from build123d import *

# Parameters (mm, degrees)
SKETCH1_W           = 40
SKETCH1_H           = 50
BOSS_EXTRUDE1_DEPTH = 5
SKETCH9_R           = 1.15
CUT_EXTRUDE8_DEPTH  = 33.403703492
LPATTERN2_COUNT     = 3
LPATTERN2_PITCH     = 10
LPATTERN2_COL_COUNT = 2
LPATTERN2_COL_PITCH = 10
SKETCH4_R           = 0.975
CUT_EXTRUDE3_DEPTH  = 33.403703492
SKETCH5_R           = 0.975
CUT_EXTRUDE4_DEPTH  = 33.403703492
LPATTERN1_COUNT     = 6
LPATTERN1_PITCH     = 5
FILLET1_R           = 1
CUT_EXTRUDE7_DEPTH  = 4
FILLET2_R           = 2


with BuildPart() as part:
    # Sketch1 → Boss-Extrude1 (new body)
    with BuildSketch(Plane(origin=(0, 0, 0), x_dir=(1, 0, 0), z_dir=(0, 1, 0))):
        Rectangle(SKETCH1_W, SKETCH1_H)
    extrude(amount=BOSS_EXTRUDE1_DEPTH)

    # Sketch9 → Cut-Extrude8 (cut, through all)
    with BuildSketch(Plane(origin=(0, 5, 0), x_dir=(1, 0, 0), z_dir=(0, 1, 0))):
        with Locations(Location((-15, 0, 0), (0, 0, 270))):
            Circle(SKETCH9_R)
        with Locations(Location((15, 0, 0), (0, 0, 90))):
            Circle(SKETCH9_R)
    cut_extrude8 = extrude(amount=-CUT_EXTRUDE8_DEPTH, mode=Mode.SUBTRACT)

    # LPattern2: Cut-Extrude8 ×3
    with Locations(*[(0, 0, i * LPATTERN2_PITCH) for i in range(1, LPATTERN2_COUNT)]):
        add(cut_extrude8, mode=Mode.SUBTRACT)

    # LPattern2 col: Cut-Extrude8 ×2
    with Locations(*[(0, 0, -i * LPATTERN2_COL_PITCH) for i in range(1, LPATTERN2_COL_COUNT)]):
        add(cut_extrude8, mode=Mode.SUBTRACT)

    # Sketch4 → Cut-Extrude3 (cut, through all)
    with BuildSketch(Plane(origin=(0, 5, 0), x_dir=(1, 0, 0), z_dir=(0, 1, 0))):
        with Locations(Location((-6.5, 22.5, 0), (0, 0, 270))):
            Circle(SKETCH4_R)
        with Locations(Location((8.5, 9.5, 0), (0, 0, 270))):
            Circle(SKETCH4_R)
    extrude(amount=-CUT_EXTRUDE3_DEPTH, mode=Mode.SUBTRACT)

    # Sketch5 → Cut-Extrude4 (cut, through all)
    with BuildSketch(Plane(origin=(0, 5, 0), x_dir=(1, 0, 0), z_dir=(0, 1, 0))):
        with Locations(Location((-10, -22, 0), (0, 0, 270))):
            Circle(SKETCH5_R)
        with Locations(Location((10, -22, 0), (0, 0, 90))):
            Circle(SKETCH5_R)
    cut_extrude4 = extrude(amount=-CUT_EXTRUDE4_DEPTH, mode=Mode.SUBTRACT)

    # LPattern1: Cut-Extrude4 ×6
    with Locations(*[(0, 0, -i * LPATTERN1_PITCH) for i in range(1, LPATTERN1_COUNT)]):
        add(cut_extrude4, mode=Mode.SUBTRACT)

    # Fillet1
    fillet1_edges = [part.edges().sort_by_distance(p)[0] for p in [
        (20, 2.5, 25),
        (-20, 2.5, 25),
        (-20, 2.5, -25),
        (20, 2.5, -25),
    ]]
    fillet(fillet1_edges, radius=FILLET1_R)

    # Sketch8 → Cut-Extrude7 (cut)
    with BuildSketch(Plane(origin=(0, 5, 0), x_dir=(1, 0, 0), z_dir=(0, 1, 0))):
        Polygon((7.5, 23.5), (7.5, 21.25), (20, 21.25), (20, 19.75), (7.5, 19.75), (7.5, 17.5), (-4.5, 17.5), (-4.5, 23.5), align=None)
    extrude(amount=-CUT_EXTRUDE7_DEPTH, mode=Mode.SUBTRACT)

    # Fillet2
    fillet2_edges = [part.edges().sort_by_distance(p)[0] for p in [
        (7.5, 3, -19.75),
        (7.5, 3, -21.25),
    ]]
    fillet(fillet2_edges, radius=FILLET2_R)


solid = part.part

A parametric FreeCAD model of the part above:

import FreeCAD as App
import Part
import Sketcher
from FreeCAD import Vector
Q = App.Units.Quantity


def edges_at(feature, points):
    """Names of the edges that pass closest to the given points."""
    edges = feature.Shape.Edges
    near = lambda p: min(range(len(edges)), key=lambda i: edges[i].distToShape(Part.Vertex(*p))[0])
    return sorted({f"Edge{near(p) + 1}" for p in points})


def add_polygon(sketch, points):
    """Adds a closed chain of lines whose ends are joined by coincident constraints."""
    first, n = sketch.GeometryCount, len(points)
    for a, b in zip(points, points[1:] + points[:1]):
        sketch.addGeometry(Part.LineSegment(App.Vector(*a, 0), App.Vector(*b, 0)), False)
    for i in range(n):
        sketch.addConstraint(Sketcher.Constraint("Coincident", first + i, 2, first + (i + 1) % n, 1))

doc = App.newDocument("Part")
body = doc.addObject("PartDesign::Body", "Body")

# Sketch on XZ plane
sketch1 = body.newObject("Sketcher::SketchObject", "Sketch")
sketch1.AttachmentSupport = (doc.getObject("XZ_Plane"), [""])
sketch1.MapMode = "FlatFace"
add_polygon(sketch1, [(-20, -25), (-20, 25), (20, 25), (20, -25)])  # lines 0-3
sketch1.addConstraint(Sketcher.Constraint("Vertical", 0))
sketch1.addConstraint(Sketcher.Constraint("Horizontal", 1))
sketch1.addConstraint(Sketcher.Constraint("Vertical", 2))
sketch1.addConstraint(Sketcher.Constraint("Horizontal", 3))
sketch1.addConstraint(Sketcher.Constraint("Symmetric", 0, 2, 2, 2, -1, 1))
sketch1.addConstraint(Sketcher.Constraint("DistanceX", 1, 1, 1, 2, Q("40 mm")))
sketch1.addConstraint(Sketcher.Constraint("DistanceY", 0, 1, 0, 2, Q("50 mm")))
pad1 = body.newObject("PartDesign::Pad", "Pad")
pad1.Profile = sketch1
pad1.Length = 5
pad1.Reversed = True

# Sketch on XZ plane
sketch2 = body.newObject("Sketcher::SketchObject", "Sketch001")
sketch2.AttachmentSupport = (doc.getObject("XZ_Plane"), [""])
sketch2.MapMode = "FlatFace"
sketch2.AttachmentOffset = App.Placement(Vector(0, 0, -5), App.Rotation())
sketch2.addGeometry(Part.Circle(Vector(-15, 0, 0), Vector(0, 0, 1), 1.1), False)
sketch2.addGeometry(Part.Circle(Vector(15, 0, 0), Vector(0, 0, 1), 1.1), False)
sketch2.addConstraint(Sketcher.Constraint("Equal", 0, 1))
sketch2.addConstraint(Sketcher.Constraint("Symmetric", 0, 3, 1, 3, -1, 1))
sketch2.addConstraint(Sketcher.Constraint("PointOnObject", 0, 3, -1))
sketch2.addConstraint(Sketcher.Constraint("Diameter", 0, Q("2.3 mm")))
sketch2.addConstraint(Sketcher.Constraint("DistanceX", 0, 3, -1, 1, Q("15 mm")))
pocket1 = body.newObject("PartDesign::Pocket", "Pocket")
pocket1.Profile = sketch2
pocket1.Type = "ThroughAll"
pocket1.Reversed = True
doc.recompute()

linearpattern = body.newObject("PartDesign::LinearPattern", "LinearPattern")
linearpattern.Originals = [pocket1]
linearpattern.Direction = (doc.getObject("Z_Axis"), [""])
linearpattern.Mode = "offset"
linearpattern.Offset = 10
linearpattern.Occurrences = 3
body.Tip = linearpattern
doc.recompute()

linearpattern2 = body.newObject("PartDesign::LinearPattern", "LinearPattern001")
linearpattern2.Originals = [pocket1]
linearpattern2.Direction = (doc.getObject("Z_Axis"), [""])
linearpattern2.Mode = "offset"
linearpattern2.Offset = 10
linearpattern2.Occurrences = 2
linearpattern2.Reversed = True
body.Tip = linearpattern2

# Sketch on XZ plane
sketch3 = body.newObject("Sketcher::SketchObject", "Sketch002")
sketch3.AttachmentSupport = (doc.getObject("XZ_Plane"), [""])
sketch3.MapMode = "FlatFace"
sketch3.AttachmentOffset = App.Placement(Vector(0, 0, -5), App.Rotation())
sketch3.addGeometry(Part.Circle(Vector(-6.5, -22.5, 0), Vector(0, 0, 1), 1), False)
sketch3.addGeometry(Part.Circle(Vector(8.5, -9.5, 0), Vector(0, 0, 1), 1), False)
sketch3.addConstraint(Sketcher.Constraint("Equal", 0, 1))
sketch3.addConstraint(Sketcher.Constraint("Diameter", 0, Q("1.95 mm")))
sketch3.addConstraint(Sketcher.Constraint("DistanceX", 0, 3, 1, 3, Q("15 mm")))
sketch3.addConstraint(Sketcher.Constraint("DistanceY", 0, 3, 1, 3, Q("13 mm")))
sketch3.addConstraint(Sketcher.Constraint("DistanceX", 0, 3, -1, 1, Q("6.5 mm")))
sketch3.addConstraint(Sketcher.Constraint("DistanceY", 0, 3, -1, 1, Q("22.5 mm")))
pocket2 = body.newObject("PartDesign::Pocket", "Pocket001")
pocket2.Profile = sketch3
pocket2.Type = "ThroughAll"
pocket2.Reversed = True

# Sketch on XZ plane
sketch4 = body.newObject("Sketcher::SketchObject", "Sketch003")
sketch4.AttachmentSupport = (doc.getObject("XZ_Plane"), [""])
sketch4.MapMode = "FlatFace"
sketch4.AttachmentOffset = App.Placement(Vector(0, 0, -5), App.Rotation())
sketch4.addGeometry(Part.Circle(Vector(-10, 22, 0), Vector(0, 0, 1), 1), False)
sketch4.addGeometry(Part.Circle(Vector(10, 22, 0), Vector(0, 0, 1), 1), False)
sketch4.addConstraint(Sketcher.Constraint("Equal", 0, 1))
sketch4.addConstraint(Sketcher.Constraint("Symmetric", 0, 3, 1, 3, -2))
sketch4.addConstraint(Sketcher.Constraint("Diameter", 0, Q("1.95 mm")))
sketch4.addConstraint(Sketcher.Constraint("DistanceX", 0, 3, -1, 1, Q("10 mm")))
sketch4.addConstraint(Sketcher.Constraint("DistanceY", -1, 1, 0, 3, Q("22 mm")))
pocket3 = body.newObject("PartDesign::Pocket", "Pocket002")
pocket3.Profile = sketch4
pocket3.Type = "ThroughAll"
pocket3.Reversed = True
doc.recompute()

linearpattern3 = body.newObject("PartDesign::LinearPattern", "LinearPattern002")
linearpattern3.Originals = [pocket3]
linearpattern3.Direction = (doc.getObject("Z_Axis"), [""])
linearpattern3.Mode = "offset"
linearpattern3.Offset = 5
linearpattern3.Occurrences = 6
linearpattern3.Reversed = True
body.Tip = linearpattern3
doc.recompute()

fillet = body.newObject("PartDesign::Fillet", "Fillet")
fillet.Base = (linearpattern3, edges_at(linearpattern3, [
    (20, 2.5, 25),
    (-20, 2.5, 25),
    (-20, 2.5, -25),
    (20, 2.5, -25),
]))
fillet.Radius = 1

# Sketch on XZ plane
sketch5 = body.newObject("Sketcher::SketchObject", "Sketch004")
sketch5.AttachmentSupport = (doc.getObject("XZ_Plane"), [""])
sketch5.MapMode = "FlatFace"
sketch5.AttachmentOffset = App.Placement(Vector(0, 0, -5), App.Rotation())
add_polygon(sketch5, [(7.5, -21.2), (7.5, -23.5), (-4.5, -23.5), (-4.5, -17.5), (7.5, -17.5), (7.5, -19.8), (20, -19.8), (20, -21.2)])  # lines 0-7
sketch5.addConstraint(Sketcher.Constraint("Vertical", 0))
sketch5.addConstraint(Sketcher.Constraint("Horizontal", 1))
sketch5.addConstraint(Sketcher.Constraint("Vertical", 2))
sketch5.addConstraint(Sketcher.Constraint("Horizontal", 3))
sketch5.addConstraint(Sketcher.Constraint("Vertical", 4))
sketch5.addConstraint(Sketcher.Constraint("Horizontal", 5))
sketch5.addConstraint(Sketcher.Constraint("Vertical", 6))
sketch5.addConstraint(Sketcher.Constraint("Horizontal", 7))
sketch5.addConstraint(Sketcher.Constraint("Vertical", 0, 2, 3, 2))
sketch5.addConstraint(Sketcher.Constraint("Equal", 0, 4))
sketch5.addConstraint(Sketcher.Constraint("DistanceX", 1, 2, 1, 1, Q("12 mm")))
sketch5.addConstraint(Sketcher.Constraint("DistanceY", 2, 1, 2, 2, Q("6 mm")))
sketch5.addConstraint(Sketcher.Constraint("DistanceX", 5, 1, 5, 2, Q("12.5 mm")))
sketch5.addConstraint(Sketcher.Constraint("DistanceY", 6, 2, 6, 1, Q("1.5 mm")))
sketch5.addConstraint(Sketcher.Constraint("DistanceX", -1, 1, 5, 2, Q("20 mm")))
sketch5.addConstraint(Sketcher.Constraint("DistanceY", 0, 2, -1, 1, Q("23.5 mm")))
pocket4 = body.newObject("PartDesign::Pocket", "Pocket003")
pocket4.Profile = sketch5
pocket4.Length = 4
pocket4.Reversed = True
doc.recompute()

fillet2 = body.newObject("PartDesign::Fillet", "Fillet001")
fillet2.Base = (pocket4, edges_at(pocket4, [(7.5, 3, -19.75), (7.5, 3, -21.25)]))
fillet2.Radius = 2

doc.recompute()
